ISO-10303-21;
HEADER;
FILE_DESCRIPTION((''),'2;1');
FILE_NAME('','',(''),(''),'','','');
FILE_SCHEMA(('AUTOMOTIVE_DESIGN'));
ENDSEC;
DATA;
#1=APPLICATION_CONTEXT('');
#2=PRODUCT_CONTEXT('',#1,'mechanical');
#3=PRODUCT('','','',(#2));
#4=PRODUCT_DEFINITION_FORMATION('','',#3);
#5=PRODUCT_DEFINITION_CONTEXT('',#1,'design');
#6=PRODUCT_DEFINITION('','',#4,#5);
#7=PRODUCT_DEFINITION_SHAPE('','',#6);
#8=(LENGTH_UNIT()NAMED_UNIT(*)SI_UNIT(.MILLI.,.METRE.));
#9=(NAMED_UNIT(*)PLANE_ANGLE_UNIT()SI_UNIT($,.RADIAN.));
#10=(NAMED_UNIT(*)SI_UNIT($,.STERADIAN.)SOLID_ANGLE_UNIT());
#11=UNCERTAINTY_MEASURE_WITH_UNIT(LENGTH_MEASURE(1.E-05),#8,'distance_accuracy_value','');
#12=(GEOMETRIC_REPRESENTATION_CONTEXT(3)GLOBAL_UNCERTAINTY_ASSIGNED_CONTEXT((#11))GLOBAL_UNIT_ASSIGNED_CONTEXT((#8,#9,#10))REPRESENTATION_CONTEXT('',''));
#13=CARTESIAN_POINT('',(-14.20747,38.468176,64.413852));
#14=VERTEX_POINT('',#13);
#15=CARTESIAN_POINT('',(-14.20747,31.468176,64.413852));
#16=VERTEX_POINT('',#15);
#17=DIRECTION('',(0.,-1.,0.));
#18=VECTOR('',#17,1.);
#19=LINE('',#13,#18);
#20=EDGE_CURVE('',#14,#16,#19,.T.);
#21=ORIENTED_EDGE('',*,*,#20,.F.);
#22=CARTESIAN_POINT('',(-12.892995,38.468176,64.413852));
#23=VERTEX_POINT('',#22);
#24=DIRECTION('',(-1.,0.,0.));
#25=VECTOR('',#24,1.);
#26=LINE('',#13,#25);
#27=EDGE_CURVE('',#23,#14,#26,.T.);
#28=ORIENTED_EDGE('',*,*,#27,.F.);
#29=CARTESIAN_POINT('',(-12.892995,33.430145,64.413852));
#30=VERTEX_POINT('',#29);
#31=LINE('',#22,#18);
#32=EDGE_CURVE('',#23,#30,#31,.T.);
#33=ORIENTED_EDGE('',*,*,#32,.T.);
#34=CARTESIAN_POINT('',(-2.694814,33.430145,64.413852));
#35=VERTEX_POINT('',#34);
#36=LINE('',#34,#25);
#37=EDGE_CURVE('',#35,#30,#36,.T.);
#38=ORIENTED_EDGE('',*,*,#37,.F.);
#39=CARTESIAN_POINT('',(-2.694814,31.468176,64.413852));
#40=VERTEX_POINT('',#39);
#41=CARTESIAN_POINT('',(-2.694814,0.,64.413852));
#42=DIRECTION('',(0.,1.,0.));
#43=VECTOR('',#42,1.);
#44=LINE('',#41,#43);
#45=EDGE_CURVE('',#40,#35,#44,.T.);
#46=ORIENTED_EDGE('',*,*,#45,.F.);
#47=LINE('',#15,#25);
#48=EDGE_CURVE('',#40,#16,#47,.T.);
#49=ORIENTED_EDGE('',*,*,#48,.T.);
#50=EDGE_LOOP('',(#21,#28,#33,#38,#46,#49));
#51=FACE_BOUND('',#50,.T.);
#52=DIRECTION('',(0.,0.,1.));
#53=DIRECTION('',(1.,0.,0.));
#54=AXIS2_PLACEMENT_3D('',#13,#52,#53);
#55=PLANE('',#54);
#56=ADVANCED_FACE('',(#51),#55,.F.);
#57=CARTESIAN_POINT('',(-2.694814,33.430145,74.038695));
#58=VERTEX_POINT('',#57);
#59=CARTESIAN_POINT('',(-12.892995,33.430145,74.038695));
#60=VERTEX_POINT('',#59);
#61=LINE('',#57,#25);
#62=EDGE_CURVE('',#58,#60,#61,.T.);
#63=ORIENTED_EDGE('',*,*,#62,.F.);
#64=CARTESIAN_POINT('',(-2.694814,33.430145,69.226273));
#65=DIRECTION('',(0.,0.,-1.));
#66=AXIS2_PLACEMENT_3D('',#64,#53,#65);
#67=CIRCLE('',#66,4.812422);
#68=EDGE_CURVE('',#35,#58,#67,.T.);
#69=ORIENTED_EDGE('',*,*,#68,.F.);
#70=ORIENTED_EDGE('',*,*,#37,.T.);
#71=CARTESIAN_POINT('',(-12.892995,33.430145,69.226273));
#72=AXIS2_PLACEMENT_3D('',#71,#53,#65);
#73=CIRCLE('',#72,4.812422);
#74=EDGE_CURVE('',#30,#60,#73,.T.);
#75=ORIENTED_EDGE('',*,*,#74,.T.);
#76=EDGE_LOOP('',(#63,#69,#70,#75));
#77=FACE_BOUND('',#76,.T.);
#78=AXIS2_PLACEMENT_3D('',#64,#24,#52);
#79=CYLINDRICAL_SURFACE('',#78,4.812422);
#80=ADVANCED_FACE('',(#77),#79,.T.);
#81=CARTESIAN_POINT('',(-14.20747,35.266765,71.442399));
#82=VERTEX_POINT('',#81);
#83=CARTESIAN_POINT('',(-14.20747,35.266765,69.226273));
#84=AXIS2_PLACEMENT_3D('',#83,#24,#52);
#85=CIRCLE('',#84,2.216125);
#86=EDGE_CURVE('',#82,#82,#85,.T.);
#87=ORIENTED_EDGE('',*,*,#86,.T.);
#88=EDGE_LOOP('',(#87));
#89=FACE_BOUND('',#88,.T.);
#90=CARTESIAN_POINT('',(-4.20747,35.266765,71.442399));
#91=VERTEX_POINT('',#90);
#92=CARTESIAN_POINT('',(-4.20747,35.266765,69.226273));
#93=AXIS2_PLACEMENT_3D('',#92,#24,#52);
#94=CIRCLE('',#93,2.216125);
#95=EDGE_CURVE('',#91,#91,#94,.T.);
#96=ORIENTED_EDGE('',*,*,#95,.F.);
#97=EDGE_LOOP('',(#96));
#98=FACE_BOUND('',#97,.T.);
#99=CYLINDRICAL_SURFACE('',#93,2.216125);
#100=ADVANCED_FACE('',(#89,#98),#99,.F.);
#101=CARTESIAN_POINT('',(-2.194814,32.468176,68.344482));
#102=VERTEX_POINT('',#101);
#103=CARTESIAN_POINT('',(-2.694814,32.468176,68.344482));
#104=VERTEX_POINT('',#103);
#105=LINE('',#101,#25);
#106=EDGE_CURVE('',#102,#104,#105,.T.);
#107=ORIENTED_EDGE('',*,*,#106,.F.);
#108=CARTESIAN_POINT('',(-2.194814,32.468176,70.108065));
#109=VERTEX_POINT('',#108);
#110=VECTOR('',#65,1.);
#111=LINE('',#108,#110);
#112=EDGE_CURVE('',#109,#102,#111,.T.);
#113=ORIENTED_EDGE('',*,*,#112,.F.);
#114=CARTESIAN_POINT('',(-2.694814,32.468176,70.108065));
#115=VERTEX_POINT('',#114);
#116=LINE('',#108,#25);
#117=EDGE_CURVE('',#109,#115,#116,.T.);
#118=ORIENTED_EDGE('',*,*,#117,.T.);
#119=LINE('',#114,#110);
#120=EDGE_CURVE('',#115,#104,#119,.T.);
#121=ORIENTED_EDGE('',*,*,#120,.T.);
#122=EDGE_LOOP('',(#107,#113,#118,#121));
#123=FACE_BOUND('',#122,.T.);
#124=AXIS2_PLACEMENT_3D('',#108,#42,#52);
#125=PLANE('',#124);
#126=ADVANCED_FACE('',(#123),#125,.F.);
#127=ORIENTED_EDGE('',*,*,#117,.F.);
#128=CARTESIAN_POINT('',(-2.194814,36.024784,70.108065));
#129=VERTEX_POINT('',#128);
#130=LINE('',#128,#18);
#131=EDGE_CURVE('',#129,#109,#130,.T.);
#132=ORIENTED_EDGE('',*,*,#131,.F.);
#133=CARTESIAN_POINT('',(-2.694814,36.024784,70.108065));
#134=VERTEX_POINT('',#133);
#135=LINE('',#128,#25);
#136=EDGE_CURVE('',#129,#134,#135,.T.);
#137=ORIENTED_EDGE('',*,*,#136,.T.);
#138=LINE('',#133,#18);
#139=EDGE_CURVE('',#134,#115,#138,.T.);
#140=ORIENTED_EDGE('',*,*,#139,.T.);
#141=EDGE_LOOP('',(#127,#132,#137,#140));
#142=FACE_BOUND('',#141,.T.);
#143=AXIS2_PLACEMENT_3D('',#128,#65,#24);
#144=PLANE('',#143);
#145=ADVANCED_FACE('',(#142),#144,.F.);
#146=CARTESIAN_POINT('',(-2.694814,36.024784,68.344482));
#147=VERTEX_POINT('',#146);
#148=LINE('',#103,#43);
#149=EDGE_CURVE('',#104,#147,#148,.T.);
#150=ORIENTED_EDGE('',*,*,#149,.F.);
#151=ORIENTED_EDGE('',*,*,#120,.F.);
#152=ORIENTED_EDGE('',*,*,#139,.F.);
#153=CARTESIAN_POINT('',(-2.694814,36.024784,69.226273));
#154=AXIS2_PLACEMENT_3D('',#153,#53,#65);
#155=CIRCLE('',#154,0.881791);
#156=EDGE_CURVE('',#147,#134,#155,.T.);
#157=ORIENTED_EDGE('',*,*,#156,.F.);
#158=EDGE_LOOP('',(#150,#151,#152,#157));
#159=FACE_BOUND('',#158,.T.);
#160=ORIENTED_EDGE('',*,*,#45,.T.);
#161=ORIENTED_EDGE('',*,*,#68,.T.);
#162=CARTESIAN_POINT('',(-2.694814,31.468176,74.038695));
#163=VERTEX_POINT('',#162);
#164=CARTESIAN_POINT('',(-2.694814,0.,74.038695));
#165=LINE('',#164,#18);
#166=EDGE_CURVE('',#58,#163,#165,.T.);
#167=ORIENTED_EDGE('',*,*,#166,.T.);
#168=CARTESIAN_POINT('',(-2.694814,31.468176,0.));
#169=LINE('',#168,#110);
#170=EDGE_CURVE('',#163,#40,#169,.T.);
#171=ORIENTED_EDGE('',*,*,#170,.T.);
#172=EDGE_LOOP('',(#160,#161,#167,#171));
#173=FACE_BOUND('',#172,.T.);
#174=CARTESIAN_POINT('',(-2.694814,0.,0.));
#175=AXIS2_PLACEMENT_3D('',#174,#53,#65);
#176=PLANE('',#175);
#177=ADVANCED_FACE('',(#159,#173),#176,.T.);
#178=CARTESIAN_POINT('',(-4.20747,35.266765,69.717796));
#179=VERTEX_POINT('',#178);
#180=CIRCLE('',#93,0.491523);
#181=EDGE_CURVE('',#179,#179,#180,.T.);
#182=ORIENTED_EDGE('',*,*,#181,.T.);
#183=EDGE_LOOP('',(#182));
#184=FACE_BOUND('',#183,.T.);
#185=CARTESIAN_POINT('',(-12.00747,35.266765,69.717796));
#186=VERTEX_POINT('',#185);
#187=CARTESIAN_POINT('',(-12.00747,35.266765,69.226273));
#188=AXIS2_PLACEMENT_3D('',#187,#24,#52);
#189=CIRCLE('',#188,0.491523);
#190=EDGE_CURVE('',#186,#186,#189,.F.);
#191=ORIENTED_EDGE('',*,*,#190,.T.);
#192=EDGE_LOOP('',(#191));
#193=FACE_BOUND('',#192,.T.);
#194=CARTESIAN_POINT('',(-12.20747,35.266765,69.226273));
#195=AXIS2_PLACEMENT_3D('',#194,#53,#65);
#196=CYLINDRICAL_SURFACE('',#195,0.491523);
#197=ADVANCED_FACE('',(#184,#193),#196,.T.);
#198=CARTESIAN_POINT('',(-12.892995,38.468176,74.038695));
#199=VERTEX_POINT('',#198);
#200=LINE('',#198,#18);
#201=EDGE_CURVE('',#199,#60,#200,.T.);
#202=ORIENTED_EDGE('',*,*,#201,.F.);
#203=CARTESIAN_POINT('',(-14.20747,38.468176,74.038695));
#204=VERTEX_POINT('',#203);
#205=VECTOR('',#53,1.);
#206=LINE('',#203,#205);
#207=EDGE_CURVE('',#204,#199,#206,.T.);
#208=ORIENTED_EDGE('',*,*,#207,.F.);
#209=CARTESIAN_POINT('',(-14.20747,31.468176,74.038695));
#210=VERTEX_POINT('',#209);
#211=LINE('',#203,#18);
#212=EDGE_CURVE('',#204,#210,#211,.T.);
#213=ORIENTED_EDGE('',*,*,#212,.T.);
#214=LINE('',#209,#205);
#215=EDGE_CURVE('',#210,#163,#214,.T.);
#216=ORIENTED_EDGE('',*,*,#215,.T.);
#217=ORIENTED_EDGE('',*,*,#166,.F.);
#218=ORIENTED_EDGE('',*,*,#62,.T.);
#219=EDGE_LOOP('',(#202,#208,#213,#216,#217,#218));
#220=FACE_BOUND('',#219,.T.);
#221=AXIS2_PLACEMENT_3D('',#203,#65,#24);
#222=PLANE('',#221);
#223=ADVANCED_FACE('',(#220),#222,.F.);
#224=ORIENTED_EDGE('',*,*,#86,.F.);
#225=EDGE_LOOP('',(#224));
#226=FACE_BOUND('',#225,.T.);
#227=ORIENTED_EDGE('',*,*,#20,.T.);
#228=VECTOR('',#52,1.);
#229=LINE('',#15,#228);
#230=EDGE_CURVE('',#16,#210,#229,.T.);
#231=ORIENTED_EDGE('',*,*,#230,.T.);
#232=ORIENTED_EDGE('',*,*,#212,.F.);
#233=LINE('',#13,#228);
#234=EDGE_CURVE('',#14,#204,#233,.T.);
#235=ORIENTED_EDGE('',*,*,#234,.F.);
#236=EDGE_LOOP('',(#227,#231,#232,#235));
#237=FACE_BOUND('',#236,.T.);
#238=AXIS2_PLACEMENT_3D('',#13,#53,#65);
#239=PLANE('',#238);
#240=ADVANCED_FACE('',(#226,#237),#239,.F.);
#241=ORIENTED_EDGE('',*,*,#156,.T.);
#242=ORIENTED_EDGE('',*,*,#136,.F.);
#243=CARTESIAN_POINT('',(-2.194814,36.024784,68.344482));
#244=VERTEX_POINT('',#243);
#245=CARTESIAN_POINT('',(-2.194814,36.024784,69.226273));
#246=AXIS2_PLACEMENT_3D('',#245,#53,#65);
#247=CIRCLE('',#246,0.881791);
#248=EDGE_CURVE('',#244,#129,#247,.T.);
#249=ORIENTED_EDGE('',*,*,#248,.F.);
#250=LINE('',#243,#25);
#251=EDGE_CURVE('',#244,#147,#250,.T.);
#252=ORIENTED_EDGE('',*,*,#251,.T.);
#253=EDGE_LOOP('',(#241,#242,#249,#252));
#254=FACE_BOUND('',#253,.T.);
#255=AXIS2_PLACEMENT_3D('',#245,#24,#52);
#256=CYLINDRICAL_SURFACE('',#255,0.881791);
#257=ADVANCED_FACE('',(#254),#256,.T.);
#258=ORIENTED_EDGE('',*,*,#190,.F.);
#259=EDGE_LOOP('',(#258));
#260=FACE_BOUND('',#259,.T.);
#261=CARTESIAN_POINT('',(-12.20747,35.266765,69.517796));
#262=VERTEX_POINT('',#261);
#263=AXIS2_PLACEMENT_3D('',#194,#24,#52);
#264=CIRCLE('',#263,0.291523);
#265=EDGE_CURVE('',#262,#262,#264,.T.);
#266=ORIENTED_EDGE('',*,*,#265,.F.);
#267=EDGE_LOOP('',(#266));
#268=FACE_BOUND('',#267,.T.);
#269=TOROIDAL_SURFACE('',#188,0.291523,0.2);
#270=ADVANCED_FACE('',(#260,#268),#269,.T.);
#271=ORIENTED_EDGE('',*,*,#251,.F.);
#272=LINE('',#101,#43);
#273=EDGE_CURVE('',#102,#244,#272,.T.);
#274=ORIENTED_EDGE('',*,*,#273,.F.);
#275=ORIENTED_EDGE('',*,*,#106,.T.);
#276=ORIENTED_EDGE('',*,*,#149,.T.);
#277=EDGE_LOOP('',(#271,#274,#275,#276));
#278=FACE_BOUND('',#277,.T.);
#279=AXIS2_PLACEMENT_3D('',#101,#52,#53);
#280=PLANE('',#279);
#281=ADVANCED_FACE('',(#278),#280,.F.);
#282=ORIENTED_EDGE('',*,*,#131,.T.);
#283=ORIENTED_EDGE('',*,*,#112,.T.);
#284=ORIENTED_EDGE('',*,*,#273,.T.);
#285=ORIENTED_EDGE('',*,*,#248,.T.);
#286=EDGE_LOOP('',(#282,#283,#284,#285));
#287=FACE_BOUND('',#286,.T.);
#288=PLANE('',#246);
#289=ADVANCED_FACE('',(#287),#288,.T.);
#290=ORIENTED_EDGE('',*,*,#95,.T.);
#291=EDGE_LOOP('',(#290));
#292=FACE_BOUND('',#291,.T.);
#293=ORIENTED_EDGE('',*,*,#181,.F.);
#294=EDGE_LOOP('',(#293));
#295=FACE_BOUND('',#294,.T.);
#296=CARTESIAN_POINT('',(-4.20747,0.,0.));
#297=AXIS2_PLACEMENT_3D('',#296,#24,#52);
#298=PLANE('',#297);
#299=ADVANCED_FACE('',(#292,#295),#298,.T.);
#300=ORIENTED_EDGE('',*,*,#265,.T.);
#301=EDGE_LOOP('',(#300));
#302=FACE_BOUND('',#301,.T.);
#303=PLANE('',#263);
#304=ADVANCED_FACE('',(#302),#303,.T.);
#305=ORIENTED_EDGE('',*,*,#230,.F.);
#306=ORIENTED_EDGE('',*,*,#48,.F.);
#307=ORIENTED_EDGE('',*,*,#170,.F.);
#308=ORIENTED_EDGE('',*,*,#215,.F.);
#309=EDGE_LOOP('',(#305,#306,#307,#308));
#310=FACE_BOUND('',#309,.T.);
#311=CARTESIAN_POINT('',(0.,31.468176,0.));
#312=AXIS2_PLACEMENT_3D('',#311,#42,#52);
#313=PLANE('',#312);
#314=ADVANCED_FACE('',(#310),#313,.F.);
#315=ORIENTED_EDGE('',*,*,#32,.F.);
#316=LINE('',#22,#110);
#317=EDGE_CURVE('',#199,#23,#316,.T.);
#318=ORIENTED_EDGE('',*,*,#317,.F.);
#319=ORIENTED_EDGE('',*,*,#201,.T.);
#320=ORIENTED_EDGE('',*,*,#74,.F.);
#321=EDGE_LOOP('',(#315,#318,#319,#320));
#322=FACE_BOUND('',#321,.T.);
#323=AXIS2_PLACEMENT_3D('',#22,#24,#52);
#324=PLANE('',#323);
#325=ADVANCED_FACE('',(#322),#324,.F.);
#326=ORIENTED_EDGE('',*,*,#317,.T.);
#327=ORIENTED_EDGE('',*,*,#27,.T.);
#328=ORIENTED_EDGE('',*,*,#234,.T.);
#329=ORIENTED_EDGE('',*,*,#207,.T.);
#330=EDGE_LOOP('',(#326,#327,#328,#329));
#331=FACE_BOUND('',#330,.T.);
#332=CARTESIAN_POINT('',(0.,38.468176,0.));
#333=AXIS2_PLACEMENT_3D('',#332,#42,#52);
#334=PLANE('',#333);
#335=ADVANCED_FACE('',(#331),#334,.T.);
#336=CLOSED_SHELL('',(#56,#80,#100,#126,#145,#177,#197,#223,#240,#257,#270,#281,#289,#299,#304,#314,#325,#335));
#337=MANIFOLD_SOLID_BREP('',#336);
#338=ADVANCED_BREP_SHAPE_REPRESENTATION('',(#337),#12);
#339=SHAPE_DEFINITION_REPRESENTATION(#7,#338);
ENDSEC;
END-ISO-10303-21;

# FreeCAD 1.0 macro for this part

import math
import FreeCAD as App
import Part
import Sketcher


def edges_at(feature, points):
    """Names of the edges that pass closest to the given points."""
    edges = feature.Shape.Edges
    near = lambda p: min(range(len(edges)), key=lambda i: edges[i].distToShape(Part.Vertex(*p))[0])
    return sorted({f"Edge{near(p) + 1}" for p in points})

doc = App.newDocument("Part")
body = doc.addObject("PartDesign::Body", "Body")

# Sketch on XZ plane
sketch1 = doc.addObject("Sketcher::SketchObject", "Sketch")
body.addObject(sketch1)
sketch1.AttachmentSupport = (doc.XZ_Plane, [""])
sketch1.MapMode = "FlatFace"
sketch1.AttachmentOffset = App.Placement(App.Vector(0, 0, -31.468176), App.Rotation())
sketch1.addGeometry(Part.LineSegment(App.Vector(-14.2, 64.4, 0), App.Vector(-14.2, 74, 0)), False)
sketch1.addGeometry(Part.LineSegment(App.Vector(-14.2, 74, 0), App.Vector(-12.9, 74, 0)), False)
sketch1.addGeometry(Part.LineSegment(App.Vector(-12.9, 74, 0), App.Vector(-12.9, 64.4, 0)), False)
sketch1.addGeometry(Part.LineSegment(App.Vector(-12.9, 64.4, 0), App.Vector(-14.2, 64.4, 0)), False)
sketch1.addConstraint(Sketcher.Constraint("Coincident", 0, 2, 1, 1))
sketch1.addConstraint(Sketcher.Constraint("Coincident", 1, 2, 2, 1))
sketch1.addConstraint(Sketcher.Constraint("Coincident", 2, 2, 3, 1))
sketch1.addConstraint(Sketcher.Constraint("Coincident", 3, 2, 0, 1))
sketch1.addConstraint(Sketcher.Constraint("Vertical", 0))
sketch1.addConstraint(Sketcher.Constraint("Horizontal", 1))
sketch1.addConstraint(Sketcher.Constraint("Vertical", 2))
sketch1.addConstraint(Sketcher.Constraint("Horizontal", 3))
sketch1.addConstraint(Sketcher.Constraint("DistanceX", 1, 1, 1, 2, 1.314475))
sketch1.addConstraint(Sketcher.Constraint("DistanceY", 0, 1, 0, 2, 9.624843))
sketch1.addConstraint(Sketcher.Constraint("DistanceX", 0, 2, -1, 1, 14.20747))
sketch1.addConstraint(Sketcher.Constraint("DistanceY", -1, 1, 2, 2, 64.413852))
pad1 = doc.addObject("PartDesign::Pad", "Pad")
body.addObject(pad1)
pad1.Profile = sketch1
pad1.Length = 7
pad1.Reversed = True

# Sketch on YZ plane
sketch2 = doc.addObject("Sketcher::SketchObject", "Sketch001")
body.addObject(sketch2)
sketch2.AttachmentSupport = (doc.YZ_Plane, [""])
sketch2.MapMode = "FlatFace"
sketch2.AttachmentOffset = App.Placement(App.Vector(0, 0, -12.892995), App.Rotation())
sketch2.addGeometry(Part.LineSegment(App.Vector(33.4, 74, 0), App.Vector(31.5, 74, 0)), False)
sketch2.addGeometry(Part.LineSegment(App.Vector(31.5, 74, 0), App.Vector(31.5, 64.4, 0)), False)
sketch2.addGeometry(Part.LineSegment(App.Vector(31.5, 64.4, 0), App.Vector(33.4, 64.4, 0)), False)
sketch2.addGeometry(Part.ArcOfCircle(Part.Circle(App.Vector(33.4, 69.2, 0), App.Vector(0, 0, 1), 4.8), math.radians(-90), math.radians(90)), False)
sketch2.addConstraint(Sketcher.Constraint("Coincident", 0, 2, 1, 1))
sketch2.addConstraint(Sketcher.Constraint("Coincident", 1, 2, 2, 1))
sketch2.addConstraint(Sketcher.Constraint("Tangent", 2, 2, 3, 1))
sketch2.addConstraint(Sketcher.Constraint("Tangent", 3, 2, 0, 1))
sketch2.addConstraint(Sketcher.Constraint("Horizontal", 0))
sketch2.addConstraint(Sketcher.Constraint("Vertical", 1))
sketch2.addConstraint(Sketcher.Constraint("Horizontal", 2))
sketch2.addConstraint(Sketcher.Constraint("Radius", 3, 4.812422))
sketch2.addConstraint(Sketcher.Constraint("DistanceX", 0, 2, 0, 1, 1.961969))
sketch2.addConstraint(Sketcher.Constraint("DistanceY", -1, 1, 1, 2, 64.413852))
sketch2.addConstraint(Sketcher.Constraint("DistanceX", -1, 1, 3, 3, 33.430145))
pad2 = doc.addObject("PartDesign::Pad", "Pad001")
body.addObject(pad2)
pad2.Profile = sketch2
pad2.Length = 10.19818

# Sketch on YZ plane
sketch3 = doc.addObject("Sketcher::SketchObject", "Sketch002")
body.addObject(sketch3)
sketch3.AttachmentSupport = (doc.YZ_Plane, [""])
sketch3.MapMode = "FlatFace"
sketch3.AttachmentOffset = App.Placement(App.Vector(0, 0, -14.20747), App.Rotation())
sketch3.addGeometry(Part.Circle(App.Vector(35.3, 69.2, 0), App.Vector(0, 0, 1), 2.2), False)
sketch3.addConstraint(Sketcher.Constraint("Diameter", 0, 4.43225))
sketch3.addConstraint(Sketcher.Constraint("DistanceX", -1, 1, 0, 3, 35.266765))
sketch3.addConstraint(Sketcher.Constraint("DistanceY", -1, 1, 0, 3, 69.226273))
pocket1 = doc.addObject("PartDesign::Pocket", "Pocket")
body.addObject(pocket1)
pocket1.Profile = sketch3
pocket1.Length = 10
pocket1.Reversed = True

# Sketch on YZ plane
sketch4 = doc.addObject("Sketcher::SketchObject", "Sketch003")
body.addObject(sketch4)
sketch4.AttachmentSupport = (doc.YZ_Plane, [""])
sketch4.MapMode = "FlatFace"
sketch4.AttachmentOffset = App.Placement(App.Vector(0, 0, -4.20747), App.Rotation())
sketch4.addGeometry(Part.Circle(App.Vector(35.27, 69.23, 0), App.Vector(0, 0, 1), 0.49), False)
sketch4.addConstraint(Sketcher.Constraint("Diameter", 0, 0.983045))
sketch4.addConstraint(Sketcher.Constraint("DistanceX", -1, 1, 0, 3, 35.266765))
sketch4.addConstraint(Sketcher.Constraint("DistanceY", -1, 1, 0, 3, 69.226273))
pad3 = doc.addObject("PartDesign::Pad", "Pad002")
body.addObject(pad3)
pad3.Profile = sketch4
pad3.Length = 8
pad3.Reversed = True
doc.recompute()

fillet = doc.addObject("PartDesign::Fillet", "Fillet")
body.addObject(fillet)
fillet.Base = (pad3, edges_at(pad3, [(-12.207, 35.267, 68.735)]))
fillet.Radius = 0.2

# Sketch on YZ plane
sketch5 = doc.addObject("Sketcher::SketchObject", "Sketch004")
body.addObject(sketch5)
sketch5.AttachmentSupport = (doc.YZ_Plane, [""])
sketch5.MapMode = "FlatFace"
sketch5.AttachmentOffset = App.Placement(App.Vector(0, 0, -2.694814), App.Rotation())
sketch5.addGeometry(Part.LineSegment(App.Vector(36, 70.1, 0), App.Vector(32.5, 70.1, 0)), False)
sketch5.addGeometry(Part.LineSegment(App.Vector(32.5, 70.1, 0), App.Vector(32.5, 68.3, 0)), False)
sketch5.addGeometry(Part.LineSegment(App.Vector(32.5, 68.3, 0), App.Vector(36, 68.3, 0)), False)
sketch5.addGeometry(Part.ArcOfCircle(Part.Circle(App.Vector(36, 69.2, 0), App.Vector(0, 0, 1), 0.9), math.radians(-90), math.radians(90)), False)
sketch5.addConstraint(Sketcher.Constraint("Coincident", 0, 2, 1, 1))
sketch5.addConstraint(Sketcher.Constraint("Coincident", 1, 2, 2, 1))
sketch5.addConstraint(Sketcher.Constraint("Tangent", 2, 2, 3, 1))
sketch5.addConstraint(Sketcher.Constraint("Tangent", 3, 2, 0, 1))
sketch5.addConstraint(Sketcher.Constraint("Horizontal", 0))
sketch5.addConstraint(Sketcher.Constraint("Vertical", 1))
sketch5.addConstraint(Sketcher.Constraint("Horizontal", 2))
sketch5.addConstraint(Sketcher.Constraint("Radius", 3, 0.881791))
sketch5.addConstraint(Sketcher.Constraint("DistanceX", 0, 2, 0, 1, 3.556608))
sketch5.addConstraint(Sketcher.Constraint("DistanceX", -1, 1, 3, 3, 36.024784))
sketch5.addConstraint(Sketcher.Constraint("DistanceY", -1, 1, 3, 3, 69.226273))
pad4 = doc.addObject("PartDesign::Pad", "Pad003")
body.addObject(pad4)
pad4.Profile = sketch5
pad4.Length = 0.5

doc.recompute()
